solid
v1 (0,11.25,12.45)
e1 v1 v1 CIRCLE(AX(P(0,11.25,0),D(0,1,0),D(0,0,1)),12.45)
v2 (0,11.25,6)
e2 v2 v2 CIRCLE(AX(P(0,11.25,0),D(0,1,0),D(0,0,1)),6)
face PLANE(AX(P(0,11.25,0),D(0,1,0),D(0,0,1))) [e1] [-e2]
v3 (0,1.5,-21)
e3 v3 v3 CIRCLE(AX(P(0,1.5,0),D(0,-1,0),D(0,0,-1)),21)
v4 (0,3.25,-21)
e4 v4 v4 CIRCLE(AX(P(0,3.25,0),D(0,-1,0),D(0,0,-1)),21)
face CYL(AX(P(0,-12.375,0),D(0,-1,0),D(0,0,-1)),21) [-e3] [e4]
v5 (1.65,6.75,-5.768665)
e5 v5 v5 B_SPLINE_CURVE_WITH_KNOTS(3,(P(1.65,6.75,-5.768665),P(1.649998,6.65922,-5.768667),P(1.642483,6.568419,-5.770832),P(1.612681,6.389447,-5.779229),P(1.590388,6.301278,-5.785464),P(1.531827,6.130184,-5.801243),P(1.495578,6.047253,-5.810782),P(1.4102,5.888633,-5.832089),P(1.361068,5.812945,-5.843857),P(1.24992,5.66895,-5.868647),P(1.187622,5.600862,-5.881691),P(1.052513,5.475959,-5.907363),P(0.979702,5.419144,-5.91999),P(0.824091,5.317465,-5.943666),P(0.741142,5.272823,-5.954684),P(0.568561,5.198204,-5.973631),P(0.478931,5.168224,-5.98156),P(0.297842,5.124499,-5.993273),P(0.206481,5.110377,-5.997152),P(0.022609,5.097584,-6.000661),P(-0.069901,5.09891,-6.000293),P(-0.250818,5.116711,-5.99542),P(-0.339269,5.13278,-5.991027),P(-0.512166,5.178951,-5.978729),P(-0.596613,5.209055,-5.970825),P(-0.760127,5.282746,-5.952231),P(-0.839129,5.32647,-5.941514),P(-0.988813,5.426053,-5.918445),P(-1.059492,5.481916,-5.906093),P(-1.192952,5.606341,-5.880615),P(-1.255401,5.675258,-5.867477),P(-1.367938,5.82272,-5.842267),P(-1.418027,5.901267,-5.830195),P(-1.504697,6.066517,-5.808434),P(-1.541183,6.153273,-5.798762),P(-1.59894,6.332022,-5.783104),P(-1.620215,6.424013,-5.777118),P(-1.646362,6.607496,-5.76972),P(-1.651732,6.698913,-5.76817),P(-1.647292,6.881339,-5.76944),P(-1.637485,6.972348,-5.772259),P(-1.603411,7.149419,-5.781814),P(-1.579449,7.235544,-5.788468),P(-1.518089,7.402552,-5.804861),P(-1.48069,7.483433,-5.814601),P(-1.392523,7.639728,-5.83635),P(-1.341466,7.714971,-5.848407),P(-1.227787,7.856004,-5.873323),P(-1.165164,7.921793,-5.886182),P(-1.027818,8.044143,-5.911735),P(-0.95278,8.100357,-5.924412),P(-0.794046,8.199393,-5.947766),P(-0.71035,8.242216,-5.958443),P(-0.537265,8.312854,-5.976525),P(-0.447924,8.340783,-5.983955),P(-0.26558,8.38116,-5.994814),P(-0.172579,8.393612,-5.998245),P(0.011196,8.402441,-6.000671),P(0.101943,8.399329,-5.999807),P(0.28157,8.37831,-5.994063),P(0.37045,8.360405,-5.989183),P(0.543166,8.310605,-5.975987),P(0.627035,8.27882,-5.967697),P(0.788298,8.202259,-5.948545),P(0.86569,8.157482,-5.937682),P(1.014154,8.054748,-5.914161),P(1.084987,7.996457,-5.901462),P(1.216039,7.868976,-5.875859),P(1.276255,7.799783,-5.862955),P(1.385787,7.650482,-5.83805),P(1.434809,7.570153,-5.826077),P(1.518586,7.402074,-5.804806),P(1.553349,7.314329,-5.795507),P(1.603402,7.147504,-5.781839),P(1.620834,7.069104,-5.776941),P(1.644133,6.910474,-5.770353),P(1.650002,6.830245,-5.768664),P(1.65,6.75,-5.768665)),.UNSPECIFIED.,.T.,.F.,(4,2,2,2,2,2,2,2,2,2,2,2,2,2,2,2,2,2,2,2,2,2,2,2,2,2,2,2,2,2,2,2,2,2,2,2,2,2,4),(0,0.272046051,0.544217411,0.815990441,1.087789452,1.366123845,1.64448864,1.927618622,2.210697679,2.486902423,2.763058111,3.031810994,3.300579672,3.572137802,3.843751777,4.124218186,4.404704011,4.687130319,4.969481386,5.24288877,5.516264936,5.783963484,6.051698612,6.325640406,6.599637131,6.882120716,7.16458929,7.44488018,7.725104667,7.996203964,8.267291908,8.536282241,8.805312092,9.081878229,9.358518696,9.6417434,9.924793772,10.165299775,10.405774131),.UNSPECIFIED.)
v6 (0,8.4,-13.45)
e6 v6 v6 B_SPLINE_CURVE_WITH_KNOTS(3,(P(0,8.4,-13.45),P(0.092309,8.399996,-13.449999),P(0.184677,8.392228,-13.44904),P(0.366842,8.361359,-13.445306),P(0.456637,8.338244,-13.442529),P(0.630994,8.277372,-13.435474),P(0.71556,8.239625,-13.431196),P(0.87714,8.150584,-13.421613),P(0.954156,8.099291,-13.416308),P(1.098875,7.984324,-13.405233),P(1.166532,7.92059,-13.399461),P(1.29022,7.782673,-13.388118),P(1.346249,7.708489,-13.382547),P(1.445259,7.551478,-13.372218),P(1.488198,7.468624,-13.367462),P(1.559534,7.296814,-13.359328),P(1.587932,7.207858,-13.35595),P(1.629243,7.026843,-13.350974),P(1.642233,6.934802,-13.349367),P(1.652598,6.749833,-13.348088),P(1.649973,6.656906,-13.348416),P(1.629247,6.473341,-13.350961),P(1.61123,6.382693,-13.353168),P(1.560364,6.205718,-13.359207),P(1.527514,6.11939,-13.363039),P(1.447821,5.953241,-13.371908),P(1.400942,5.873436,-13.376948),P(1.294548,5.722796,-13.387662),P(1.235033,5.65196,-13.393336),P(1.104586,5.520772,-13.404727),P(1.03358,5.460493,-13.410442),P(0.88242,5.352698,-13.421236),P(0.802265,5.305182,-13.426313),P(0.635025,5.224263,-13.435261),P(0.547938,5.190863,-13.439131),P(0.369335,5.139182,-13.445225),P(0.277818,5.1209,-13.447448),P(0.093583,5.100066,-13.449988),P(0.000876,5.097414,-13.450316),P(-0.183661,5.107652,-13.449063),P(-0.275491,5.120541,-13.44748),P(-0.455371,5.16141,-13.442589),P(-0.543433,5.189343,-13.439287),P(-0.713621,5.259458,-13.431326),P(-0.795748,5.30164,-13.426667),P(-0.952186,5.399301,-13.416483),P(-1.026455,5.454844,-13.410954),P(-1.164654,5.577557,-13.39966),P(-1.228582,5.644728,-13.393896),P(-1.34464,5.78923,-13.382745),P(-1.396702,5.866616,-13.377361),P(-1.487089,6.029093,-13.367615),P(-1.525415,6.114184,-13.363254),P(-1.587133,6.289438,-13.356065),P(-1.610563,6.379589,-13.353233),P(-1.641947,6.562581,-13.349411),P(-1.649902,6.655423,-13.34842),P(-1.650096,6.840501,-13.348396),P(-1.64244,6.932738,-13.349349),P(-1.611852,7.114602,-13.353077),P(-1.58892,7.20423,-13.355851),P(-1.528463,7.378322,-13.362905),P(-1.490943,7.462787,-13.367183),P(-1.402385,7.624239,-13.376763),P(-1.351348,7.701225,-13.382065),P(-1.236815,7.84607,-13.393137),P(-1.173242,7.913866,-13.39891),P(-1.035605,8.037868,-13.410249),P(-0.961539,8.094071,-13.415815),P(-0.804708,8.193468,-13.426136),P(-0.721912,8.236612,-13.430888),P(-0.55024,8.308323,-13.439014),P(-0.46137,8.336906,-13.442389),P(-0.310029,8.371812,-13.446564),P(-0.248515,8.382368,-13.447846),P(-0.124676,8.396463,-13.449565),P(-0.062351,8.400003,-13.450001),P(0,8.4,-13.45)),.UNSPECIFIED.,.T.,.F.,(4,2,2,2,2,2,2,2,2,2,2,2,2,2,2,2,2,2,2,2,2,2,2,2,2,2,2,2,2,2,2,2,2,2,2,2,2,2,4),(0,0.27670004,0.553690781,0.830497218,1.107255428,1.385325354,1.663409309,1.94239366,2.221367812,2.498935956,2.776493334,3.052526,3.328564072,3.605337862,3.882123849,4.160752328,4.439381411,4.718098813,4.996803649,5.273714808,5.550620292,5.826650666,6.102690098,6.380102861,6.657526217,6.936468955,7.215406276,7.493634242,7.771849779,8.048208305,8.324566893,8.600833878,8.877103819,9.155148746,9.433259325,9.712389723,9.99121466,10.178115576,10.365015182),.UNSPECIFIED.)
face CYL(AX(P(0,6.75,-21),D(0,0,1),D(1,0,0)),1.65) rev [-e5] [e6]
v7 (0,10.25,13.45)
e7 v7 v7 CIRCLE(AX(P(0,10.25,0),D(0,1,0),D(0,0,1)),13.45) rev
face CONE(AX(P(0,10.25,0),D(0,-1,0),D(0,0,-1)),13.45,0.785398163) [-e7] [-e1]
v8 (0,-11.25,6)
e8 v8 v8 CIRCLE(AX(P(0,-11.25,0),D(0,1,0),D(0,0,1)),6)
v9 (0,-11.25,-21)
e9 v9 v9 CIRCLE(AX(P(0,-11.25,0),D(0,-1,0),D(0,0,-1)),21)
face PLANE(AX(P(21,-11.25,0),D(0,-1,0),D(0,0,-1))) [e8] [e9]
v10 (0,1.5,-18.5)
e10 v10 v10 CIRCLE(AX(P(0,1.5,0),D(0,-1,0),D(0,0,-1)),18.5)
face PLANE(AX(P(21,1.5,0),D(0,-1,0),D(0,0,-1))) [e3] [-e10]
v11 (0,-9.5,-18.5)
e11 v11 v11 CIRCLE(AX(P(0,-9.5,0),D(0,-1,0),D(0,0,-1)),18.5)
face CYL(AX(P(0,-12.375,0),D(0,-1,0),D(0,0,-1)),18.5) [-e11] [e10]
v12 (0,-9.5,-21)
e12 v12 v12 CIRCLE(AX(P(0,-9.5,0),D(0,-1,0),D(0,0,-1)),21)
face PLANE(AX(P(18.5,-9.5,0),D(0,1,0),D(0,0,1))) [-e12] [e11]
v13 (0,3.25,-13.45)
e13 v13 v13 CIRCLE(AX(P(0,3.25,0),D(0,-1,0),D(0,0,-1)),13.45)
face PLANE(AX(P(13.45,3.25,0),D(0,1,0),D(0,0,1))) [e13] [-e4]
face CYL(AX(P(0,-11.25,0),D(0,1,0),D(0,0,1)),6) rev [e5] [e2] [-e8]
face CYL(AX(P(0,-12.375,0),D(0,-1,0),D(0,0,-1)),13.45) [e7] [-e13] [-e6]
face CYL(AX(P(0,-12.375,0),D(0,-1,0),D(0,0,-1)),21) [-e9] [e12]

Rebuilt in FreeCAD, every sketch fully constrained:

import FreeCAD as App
import Part
import Sketcher
from FreeCAD import Vector
Q = App.Units.Quantity


def edges_at(feature, points):
    """Names of the edges that pass closest to the given points."""
    edges = feature.Shape.Edges
    near = lambda p: min(range(len(edges)), key=lambda i: edges[i].distToShape(Part.Vertex(*p))[0])
    return sorted({f"Edge{near(p) + 1}" for p in points})

doc = App.newDocument("Part")
params = doc.addObject("Spreadsheet::Sheet", "Params")
for row, (alias, value) in enumerate([
    ("sketch1_width", "21 mm"),
    ("sketch1_height", "11 mm"),
    ("sketch1_height2", "8 mm"),
    ("sketch1_width2", "2.5 mm"),
    ("sketch1_height3", "22.5 mm"),
    ("revolution_angle", "360 deg"),
    ("chamfer_size", "1 mm"),
    ("sketch2_diameter", "12 mm"),
    ("sketch3_diameter", "3.3 mm"),
], start=1):
    params.set(f"A{row}", alias)
    params.set(f"B{row}", "=" + value)
    params.setAlias(f"B{row}", alias)

body = doc.addObject("PartDesign::Body", "Body")

sketch1 = body.newObject("Sketcher::SketchObject", "Sketch")
sketch1.AttachmentSupport = (doc.getObject("XY_Plane"), [""])
sketch1.MapMode = "FlatFace"
sketch1.addGeometry([
    Part.LineSegment(Vector(13.4, 11.2, 0), Vector(0, 11.2, 0)),
    Part.LineSegment(Vector(0, 11.2, 0), Vector(0, -11.2, 0)),
    Part.LineSegment(Vector(0, -11.2, 0), Vector(21, -11.2, 0)),
    Part.LineSegment(Vector(21, -11.2, 0), Vector(21, -9.5, 0)),
    Part.LineSegment(Vector(21, -9.5, 0), Vector(18.5, -9.5, 0)),
    Part.LineSegment(Vector(18.5, -9.5, 0), Vector(18.5, 1.5, 0)),
    Part.LineSegment(Vector(18.5, 1.5, 0), Vector(21, 1.5, 0)),
    Part.LineSegment(Vector(21, 1.5, 0), Vector(21, 3.2, 0)),
    Part.LineSegment(Vector(21, 3.2, 0), Vector(13.4, 3.2, 0)),
    Part.LineSegment(Vector(13.4, 3.2, 0), Vector(13.4, 11.2, 0)),
], False)
sketch1.addConstraint([
    Sketcher.Constraint("Coincident", 0, 2, 1, 1),
    Sketcher.Constraint("Coincident", 1, 2, 2, 1),
    Sketcher.Constraint("Coincident", 2, 2, 3, 1),
    Sketcher.Constraint("Coincident", 3, 2, 4, 1),
    Sketcher.Constraint("Coincident", 4, 2, 5, 1),
    Sketcher.Constraint("Coincident", 5, 2, 6, 1),
    Sketcher.Constraint("Coincident", 6, 2, 7, 1),
    Sketcher.Constraint("Coincident", 7, 2, 8, 1),
    Sketcher.Constraint("Coincident", 8, 2, 9, 1),
    Sketcher.Constraint("Coincident", 9, 2, 0, 1),
    Sketcher.Constraint("Horizontal", 0),
    Sketcher.Constraint("Vertical", 1),
    Sketcher.Constraint("Horizontal", 2),
    Sketcher.Constraint("Vertical", 3),
    Sketcher.Constraint("Horizontal", 4),
    Sketcher.Constraint("Vertical", 5),
    Sketcher.Constraint("Horizontal", 6),
    Sketcher.Constraint("Vertical", 7),
    Sketcher.Constraint("Horizontal", 8),
    Sketcher.Constraint("Vertical", 9),
    Sketcher.Constraint("Symmetric", 0, 2, 1, 2, -1, 1),
    Sketcher.Constraint("Vertical", 3, 2, 6, 2),
    Sketcher.Constraint("Equal", 3, 7),
    Sketcher.Constraint("DistanceX", 2, 1, 2, 2, Q("21 mm")),
    Sketcher.Constraint("DistanceY", 5, 1, 5, 2, Q("11 mm")),
    Sketcher.Constraint("DistanceY", 9, 1, 9, 2, Q("8 mm")),
    Sketcher.Constraint("DistanceX", 4, 2, 4, 1, Q("2.5 mm")),
    Sketcher.Constraint("DistanceY", 1, 2, 1, 1, Q("22.5 mm")),
    Sketcher.Constraint("DistanceX", 0, 2, 0, 1, Q("13.45 mm")),
])
sketch1.setExpression("Constraints[23]", "Params.sketch1_width")
sketch1.setExpression("Constraints[24]", "Params.sketch1_height")
sketch1.setExpression("Constraints[25]", "Params.sketch1_height2")
sketch1.setExpression("Constraints[26]", "Params.sketch1_width2")
sketch1.setExpression("Constraints[27]", "Params.sketch1_height3")
revolution = body.newObject("PartDesign::Revolution", "Revolution")
revolution.Profile = sketch1
revolution.ReferenceAxis = (sketch1, ["V_Axis"])
revolution.setExpression("Angle", "Params.revolution_angle")
doc.recompute()

chamfer = body.newObject("PartDesign::Chamfer", "Chamfer")
chamfer.Base = (revolution, edges_at(revolution, [(0, 11.25, 13.45)]))
chamfer.setExpression("Size", "Params.chamfer_size")

sketch2 = body.newObject("Sketcher::SketchObject", "Sketch001")
sketch2.AttachmentSupport = (doc.getObject("XZ_Plane"), [""])
sketch2.MapMode = "FlatFace"
sketch2.AttachmentOffset = App.Placement(Vector(0, 0, -11.25), App.Rotation())
sketch2.addGeometry(Part.Circle(Vector(0, 0, 0), Vector(0, 0, 1), 6), False)
sketch2.addConstraint([
    Sketcher.Constraint("Coincident", 0, 3, -1, 1),
    Sketcher.Constraint("Diameter", 0, Q("12 mm")),
])
sketch2.setExpression("Constraints[1]", "Params.sketch2_diameter")
pocket1 = body.newObject("PartDesign::Pocket", "Pocket")
pocket1.Profile = sketch2
pocket1.Type = "ThroughAll"
pocket1.Reversed = True

sketch3 = body.newObject("Sketcher::SketchObject", "Sketch002")
sketch3.AttachmentSupport = (doc.getObject("XY_Plane"), [""])
sketch3.MapMode = "FlatFace"
sketch3.addGeometry(Part.Circle(Vector(0, 6.8, 0), Vector(0, 0, 1), 1.6), False)
sketch3.addConstraint([
    Sketcher.Constraint("PointOnObject", 0, 3, -2),
    Sketcher.Constraint("Diameter", 0, Q("3.3 mm")),
    Sketcher.Constraint("DistanceY", -1, 1, 0, 3, Q("6.75 mm")),
])
sketch3.setExpression("Constraints[1]", "Params.sketch3_diameter")
pocket2 = body.newObject("PartDesign::Pocket", "Pocket001")
pocket2.Profile = sketch3
pocket2.Type = "ThroughAll"

doc.recompute()
